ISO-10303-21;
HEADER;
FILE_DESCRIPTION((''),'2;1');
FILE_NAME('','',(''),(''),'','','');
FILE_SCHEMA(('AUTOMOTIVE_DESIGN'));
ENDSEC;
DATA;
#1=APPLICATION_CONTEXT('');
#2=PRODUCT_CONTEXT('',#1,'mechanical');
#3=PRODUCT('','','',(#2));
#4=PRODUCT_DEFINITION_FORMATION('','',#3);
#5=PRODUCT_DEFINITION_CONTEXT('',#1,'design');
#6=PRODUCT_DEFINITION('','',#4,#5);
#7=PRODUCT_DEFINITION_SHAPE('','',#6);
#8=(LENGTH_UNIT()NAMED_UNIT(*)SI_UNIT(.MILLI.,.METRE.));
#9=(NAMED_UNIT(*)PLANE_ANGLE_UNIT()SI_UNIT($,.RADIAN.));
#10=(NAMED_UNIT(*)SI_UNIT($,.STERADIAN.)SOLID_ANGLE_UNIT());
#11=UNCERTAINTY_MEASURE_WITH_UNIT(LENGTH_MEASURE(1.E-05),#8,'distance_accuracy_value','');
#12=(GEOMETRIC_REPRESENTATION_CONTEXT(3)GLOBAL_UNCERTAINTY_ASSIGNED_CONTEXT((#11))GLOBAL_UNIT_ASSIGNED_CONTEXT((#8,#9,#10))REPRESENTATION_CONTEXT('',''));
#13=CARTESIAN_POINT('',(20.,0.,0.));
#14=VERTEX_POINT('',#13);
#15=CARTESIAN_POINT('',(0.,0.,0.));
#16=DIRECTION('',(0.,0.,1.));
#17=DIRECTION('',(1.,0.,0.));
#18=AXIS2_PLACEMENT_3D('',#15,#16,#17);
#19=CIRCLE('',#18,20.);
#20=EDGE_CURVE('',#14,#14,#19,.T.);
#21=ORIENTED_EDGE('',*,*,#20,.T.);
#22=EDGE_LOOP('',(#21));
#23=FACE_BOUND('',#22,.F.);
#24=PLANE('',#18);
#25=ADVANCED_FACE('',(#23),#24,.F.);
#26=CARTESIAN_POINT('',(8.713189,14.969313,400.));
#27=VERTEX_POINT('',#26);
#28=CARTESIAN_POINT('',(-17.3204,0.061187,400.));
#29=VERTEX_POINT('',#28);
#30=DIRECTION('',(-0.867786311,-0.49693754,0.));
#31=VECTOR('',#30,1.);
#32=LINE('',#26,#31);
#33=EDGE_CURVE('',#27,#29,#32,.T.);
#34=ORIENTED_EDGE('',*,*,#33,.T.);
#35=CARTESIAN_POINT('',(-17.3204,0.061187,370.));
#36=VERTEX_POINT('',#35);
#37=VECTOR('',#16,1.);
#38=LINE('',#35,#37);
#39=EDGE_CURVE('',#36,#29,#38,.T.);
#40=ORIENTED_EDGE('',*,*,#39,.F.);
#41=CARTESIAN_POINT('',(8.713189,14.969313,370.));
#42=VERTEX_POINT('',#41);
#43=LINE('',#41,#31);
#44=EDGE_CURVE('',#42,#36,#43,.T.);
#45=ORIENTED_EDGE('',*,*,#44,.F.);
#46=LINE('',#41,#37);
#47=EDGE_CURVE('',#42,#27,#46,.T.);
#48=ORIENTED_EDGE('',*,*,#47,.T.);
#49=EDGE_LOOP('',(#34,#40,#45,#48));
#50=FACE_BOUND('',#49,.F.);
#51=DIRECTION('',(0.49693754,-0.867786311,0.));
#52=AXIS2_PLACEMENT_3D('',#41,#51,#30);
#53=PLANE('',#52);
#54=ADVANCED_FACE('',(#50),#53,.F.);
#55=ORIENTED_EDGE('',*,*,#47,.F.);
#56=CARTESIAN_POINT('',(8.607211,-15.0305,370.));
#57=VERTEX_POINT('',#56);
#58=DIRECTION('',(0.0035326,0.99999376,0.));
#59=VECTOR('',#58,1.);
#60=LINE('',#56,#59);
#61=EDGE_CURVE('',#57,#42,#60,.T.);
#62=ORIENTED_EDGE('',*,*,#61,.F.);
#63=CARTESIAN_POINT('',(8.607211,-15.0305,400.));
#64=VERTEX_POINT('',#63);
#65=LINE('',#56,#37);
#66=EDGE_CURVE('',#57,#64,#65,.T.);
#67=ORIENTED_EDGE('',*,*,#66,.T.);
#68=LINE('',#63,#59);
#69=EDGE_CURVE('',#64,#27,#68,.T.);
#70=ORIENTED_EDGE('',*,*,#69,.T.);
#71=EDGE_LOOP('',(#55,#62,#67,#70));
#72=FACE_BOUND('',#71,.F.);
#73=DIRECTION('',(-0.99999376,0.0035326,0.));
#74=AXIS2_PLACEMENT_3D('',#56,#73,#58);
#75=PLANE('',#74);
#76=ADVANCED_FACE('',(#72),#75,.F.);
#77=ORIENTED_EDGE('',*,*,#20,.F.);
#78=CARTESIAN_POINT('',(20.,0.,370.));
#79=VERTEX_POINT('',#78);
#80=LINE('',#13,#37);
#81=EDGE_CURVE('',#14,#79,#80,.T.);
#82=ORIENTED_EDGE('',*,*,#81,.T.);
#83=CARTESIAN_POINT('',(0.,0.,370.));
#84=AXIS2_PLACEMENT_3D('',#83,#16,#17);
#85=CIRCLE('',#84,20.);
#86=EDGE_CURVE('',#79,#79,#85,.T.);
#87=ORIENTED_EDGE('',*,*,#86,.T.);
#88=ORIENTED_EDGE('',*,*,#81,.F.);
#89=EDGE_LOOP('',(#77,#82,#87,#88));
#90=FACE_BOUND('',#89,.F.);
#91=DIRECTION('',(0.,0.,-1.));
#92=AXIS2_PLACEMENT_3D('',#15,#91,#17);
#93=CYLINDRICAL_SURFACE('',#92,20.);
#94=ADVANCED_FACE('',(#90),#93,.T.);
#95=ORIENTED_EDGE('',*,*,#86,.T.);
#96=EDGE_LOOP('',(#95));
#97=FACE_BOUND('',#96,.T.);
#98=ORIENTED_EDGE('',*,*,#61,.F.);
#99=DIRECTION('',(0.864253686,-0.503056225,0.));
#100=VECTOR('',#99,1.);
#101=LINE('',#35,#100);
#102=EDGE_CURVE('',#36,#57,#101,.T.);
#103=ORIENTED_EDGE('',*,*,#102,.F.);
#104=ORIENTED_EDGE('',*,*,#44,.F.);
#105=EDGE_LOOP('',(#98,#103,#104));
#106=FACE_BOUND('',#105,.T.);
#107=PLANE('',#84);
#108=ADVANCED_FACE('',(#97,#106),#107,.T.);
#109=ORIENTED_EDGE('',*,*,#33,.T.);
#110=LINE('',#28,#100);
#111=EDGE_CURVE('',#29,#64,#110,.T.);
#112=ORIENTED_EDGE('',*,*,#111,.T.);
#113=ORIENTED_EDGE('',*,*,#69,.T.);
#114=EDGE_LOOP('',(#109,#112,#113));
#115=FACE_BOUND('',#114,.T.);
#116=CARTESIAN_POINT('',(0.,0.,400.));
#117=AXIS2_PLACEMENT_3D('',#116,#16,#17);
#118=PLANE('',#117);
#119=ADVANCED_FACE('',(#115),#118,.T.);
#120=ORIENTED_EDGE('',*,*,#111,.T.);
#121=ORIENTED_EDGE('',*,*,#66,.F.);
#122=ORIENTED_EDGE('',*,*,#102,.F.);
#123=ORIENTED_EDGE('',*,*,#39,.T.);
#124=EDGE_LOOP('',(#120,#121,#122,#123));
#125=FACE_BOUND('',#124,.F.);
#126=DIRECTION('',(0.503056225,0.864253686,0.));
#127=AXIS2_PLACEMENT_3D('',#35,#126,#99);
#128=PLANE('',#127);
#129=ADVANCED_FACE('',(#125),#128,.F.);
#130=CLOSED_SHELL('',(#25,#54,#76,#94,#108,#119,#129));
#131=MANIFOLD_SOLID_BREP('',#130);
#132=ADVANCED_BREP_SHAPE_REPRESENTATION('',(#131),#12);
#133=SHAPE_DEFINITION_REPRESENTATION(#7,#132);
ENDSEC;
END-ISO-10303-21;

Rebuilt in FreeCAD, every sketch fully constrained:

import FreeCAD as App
import Part
import Sketcher


def add_polygon(sketch, points):
    """Adds a closed chain of lines whose ends are joined by coincident constraints."""
    first, n = sketch.GeometryCount, len(points)
    for a, b in zip(points, points[1:] + points[:1]):
        sketch.addGeometry(Part.LineSegment(App.Vector(*a, 0), App.Vector(*b, 0)), False)
    for i in range(n):
        sketch.addConstraint(Sketcher.Constraint("Coincident", first + i, 2, first + (i + 1) % n, 1))

doc = App.newDocument("Part")
body = doc.addObject("PartDesign::Body", "Body")

# Sketch on XY plane
sketch1 = doc.addObject("Sketcher::SketchObject", "Sketch")
body.addObject(sketch1)
sketch1.AttachmentSupport = (doc.XY_Plane, [""])
sketch1.MapMode = "FlatFace"
sketch1.addGeometry(Part.Circle(App.Vector(0, 0, 0), App.Vector(0, 0, 1), 20), False)
sketch1.addConstraint([
    Sketcher.Constraint("Coincident", 0, 3, -1, 1),
    Sketcher.Constraint("Diameter", 0, 40.0),
])
pad1 = doc.addObject("PartDesign::Pad", "Pad")
body.addObject(pad1)
pad1.Profile = sketch1
pad1.Length = 370

# Sketch on XY plane
sketch2 = doc.addObject("Sketcher::SketchObject", "Sketch001")
body.addObject(sketch2)
sketch2.AttachmentSupport = (doc.XY_Plane, [""])
sketch2.MapMode = "FlatFace"
sketch2.AttachmentOffset = App.Placement(App.Vector(0, 0, 370), App.Rotation())
add_polygon(sketch2, [(-17.3204, 0.061187), (8.607211, -15.0305), (8.713189, 14.969313)])  # lines 0-2
sketch2.addConstraint([
    Sketcher.Constraint("Equal", 0, 1),
    Sketcher.Constraint("Equal", 1, 2),
    Sketcher.Constraint("Distance", 0, 30.0),
    Sketcher.Constraint("DistanceY", 0, 2, -1, 1, 15.0305),
    Sketcher.Constraint("DistanceX", 2, 2, -1, 1, 17.3204),
    Sketcher.Constraint("DistanceX", -1, 1, 0, 2, 8.607211),
])
pad2 = doc.addObject("PartDesign::Pad", "Pad001")
body.addObject(pad2)
pad2.Profile = sketch2
pad2.Length = 30

doc.recompute()
